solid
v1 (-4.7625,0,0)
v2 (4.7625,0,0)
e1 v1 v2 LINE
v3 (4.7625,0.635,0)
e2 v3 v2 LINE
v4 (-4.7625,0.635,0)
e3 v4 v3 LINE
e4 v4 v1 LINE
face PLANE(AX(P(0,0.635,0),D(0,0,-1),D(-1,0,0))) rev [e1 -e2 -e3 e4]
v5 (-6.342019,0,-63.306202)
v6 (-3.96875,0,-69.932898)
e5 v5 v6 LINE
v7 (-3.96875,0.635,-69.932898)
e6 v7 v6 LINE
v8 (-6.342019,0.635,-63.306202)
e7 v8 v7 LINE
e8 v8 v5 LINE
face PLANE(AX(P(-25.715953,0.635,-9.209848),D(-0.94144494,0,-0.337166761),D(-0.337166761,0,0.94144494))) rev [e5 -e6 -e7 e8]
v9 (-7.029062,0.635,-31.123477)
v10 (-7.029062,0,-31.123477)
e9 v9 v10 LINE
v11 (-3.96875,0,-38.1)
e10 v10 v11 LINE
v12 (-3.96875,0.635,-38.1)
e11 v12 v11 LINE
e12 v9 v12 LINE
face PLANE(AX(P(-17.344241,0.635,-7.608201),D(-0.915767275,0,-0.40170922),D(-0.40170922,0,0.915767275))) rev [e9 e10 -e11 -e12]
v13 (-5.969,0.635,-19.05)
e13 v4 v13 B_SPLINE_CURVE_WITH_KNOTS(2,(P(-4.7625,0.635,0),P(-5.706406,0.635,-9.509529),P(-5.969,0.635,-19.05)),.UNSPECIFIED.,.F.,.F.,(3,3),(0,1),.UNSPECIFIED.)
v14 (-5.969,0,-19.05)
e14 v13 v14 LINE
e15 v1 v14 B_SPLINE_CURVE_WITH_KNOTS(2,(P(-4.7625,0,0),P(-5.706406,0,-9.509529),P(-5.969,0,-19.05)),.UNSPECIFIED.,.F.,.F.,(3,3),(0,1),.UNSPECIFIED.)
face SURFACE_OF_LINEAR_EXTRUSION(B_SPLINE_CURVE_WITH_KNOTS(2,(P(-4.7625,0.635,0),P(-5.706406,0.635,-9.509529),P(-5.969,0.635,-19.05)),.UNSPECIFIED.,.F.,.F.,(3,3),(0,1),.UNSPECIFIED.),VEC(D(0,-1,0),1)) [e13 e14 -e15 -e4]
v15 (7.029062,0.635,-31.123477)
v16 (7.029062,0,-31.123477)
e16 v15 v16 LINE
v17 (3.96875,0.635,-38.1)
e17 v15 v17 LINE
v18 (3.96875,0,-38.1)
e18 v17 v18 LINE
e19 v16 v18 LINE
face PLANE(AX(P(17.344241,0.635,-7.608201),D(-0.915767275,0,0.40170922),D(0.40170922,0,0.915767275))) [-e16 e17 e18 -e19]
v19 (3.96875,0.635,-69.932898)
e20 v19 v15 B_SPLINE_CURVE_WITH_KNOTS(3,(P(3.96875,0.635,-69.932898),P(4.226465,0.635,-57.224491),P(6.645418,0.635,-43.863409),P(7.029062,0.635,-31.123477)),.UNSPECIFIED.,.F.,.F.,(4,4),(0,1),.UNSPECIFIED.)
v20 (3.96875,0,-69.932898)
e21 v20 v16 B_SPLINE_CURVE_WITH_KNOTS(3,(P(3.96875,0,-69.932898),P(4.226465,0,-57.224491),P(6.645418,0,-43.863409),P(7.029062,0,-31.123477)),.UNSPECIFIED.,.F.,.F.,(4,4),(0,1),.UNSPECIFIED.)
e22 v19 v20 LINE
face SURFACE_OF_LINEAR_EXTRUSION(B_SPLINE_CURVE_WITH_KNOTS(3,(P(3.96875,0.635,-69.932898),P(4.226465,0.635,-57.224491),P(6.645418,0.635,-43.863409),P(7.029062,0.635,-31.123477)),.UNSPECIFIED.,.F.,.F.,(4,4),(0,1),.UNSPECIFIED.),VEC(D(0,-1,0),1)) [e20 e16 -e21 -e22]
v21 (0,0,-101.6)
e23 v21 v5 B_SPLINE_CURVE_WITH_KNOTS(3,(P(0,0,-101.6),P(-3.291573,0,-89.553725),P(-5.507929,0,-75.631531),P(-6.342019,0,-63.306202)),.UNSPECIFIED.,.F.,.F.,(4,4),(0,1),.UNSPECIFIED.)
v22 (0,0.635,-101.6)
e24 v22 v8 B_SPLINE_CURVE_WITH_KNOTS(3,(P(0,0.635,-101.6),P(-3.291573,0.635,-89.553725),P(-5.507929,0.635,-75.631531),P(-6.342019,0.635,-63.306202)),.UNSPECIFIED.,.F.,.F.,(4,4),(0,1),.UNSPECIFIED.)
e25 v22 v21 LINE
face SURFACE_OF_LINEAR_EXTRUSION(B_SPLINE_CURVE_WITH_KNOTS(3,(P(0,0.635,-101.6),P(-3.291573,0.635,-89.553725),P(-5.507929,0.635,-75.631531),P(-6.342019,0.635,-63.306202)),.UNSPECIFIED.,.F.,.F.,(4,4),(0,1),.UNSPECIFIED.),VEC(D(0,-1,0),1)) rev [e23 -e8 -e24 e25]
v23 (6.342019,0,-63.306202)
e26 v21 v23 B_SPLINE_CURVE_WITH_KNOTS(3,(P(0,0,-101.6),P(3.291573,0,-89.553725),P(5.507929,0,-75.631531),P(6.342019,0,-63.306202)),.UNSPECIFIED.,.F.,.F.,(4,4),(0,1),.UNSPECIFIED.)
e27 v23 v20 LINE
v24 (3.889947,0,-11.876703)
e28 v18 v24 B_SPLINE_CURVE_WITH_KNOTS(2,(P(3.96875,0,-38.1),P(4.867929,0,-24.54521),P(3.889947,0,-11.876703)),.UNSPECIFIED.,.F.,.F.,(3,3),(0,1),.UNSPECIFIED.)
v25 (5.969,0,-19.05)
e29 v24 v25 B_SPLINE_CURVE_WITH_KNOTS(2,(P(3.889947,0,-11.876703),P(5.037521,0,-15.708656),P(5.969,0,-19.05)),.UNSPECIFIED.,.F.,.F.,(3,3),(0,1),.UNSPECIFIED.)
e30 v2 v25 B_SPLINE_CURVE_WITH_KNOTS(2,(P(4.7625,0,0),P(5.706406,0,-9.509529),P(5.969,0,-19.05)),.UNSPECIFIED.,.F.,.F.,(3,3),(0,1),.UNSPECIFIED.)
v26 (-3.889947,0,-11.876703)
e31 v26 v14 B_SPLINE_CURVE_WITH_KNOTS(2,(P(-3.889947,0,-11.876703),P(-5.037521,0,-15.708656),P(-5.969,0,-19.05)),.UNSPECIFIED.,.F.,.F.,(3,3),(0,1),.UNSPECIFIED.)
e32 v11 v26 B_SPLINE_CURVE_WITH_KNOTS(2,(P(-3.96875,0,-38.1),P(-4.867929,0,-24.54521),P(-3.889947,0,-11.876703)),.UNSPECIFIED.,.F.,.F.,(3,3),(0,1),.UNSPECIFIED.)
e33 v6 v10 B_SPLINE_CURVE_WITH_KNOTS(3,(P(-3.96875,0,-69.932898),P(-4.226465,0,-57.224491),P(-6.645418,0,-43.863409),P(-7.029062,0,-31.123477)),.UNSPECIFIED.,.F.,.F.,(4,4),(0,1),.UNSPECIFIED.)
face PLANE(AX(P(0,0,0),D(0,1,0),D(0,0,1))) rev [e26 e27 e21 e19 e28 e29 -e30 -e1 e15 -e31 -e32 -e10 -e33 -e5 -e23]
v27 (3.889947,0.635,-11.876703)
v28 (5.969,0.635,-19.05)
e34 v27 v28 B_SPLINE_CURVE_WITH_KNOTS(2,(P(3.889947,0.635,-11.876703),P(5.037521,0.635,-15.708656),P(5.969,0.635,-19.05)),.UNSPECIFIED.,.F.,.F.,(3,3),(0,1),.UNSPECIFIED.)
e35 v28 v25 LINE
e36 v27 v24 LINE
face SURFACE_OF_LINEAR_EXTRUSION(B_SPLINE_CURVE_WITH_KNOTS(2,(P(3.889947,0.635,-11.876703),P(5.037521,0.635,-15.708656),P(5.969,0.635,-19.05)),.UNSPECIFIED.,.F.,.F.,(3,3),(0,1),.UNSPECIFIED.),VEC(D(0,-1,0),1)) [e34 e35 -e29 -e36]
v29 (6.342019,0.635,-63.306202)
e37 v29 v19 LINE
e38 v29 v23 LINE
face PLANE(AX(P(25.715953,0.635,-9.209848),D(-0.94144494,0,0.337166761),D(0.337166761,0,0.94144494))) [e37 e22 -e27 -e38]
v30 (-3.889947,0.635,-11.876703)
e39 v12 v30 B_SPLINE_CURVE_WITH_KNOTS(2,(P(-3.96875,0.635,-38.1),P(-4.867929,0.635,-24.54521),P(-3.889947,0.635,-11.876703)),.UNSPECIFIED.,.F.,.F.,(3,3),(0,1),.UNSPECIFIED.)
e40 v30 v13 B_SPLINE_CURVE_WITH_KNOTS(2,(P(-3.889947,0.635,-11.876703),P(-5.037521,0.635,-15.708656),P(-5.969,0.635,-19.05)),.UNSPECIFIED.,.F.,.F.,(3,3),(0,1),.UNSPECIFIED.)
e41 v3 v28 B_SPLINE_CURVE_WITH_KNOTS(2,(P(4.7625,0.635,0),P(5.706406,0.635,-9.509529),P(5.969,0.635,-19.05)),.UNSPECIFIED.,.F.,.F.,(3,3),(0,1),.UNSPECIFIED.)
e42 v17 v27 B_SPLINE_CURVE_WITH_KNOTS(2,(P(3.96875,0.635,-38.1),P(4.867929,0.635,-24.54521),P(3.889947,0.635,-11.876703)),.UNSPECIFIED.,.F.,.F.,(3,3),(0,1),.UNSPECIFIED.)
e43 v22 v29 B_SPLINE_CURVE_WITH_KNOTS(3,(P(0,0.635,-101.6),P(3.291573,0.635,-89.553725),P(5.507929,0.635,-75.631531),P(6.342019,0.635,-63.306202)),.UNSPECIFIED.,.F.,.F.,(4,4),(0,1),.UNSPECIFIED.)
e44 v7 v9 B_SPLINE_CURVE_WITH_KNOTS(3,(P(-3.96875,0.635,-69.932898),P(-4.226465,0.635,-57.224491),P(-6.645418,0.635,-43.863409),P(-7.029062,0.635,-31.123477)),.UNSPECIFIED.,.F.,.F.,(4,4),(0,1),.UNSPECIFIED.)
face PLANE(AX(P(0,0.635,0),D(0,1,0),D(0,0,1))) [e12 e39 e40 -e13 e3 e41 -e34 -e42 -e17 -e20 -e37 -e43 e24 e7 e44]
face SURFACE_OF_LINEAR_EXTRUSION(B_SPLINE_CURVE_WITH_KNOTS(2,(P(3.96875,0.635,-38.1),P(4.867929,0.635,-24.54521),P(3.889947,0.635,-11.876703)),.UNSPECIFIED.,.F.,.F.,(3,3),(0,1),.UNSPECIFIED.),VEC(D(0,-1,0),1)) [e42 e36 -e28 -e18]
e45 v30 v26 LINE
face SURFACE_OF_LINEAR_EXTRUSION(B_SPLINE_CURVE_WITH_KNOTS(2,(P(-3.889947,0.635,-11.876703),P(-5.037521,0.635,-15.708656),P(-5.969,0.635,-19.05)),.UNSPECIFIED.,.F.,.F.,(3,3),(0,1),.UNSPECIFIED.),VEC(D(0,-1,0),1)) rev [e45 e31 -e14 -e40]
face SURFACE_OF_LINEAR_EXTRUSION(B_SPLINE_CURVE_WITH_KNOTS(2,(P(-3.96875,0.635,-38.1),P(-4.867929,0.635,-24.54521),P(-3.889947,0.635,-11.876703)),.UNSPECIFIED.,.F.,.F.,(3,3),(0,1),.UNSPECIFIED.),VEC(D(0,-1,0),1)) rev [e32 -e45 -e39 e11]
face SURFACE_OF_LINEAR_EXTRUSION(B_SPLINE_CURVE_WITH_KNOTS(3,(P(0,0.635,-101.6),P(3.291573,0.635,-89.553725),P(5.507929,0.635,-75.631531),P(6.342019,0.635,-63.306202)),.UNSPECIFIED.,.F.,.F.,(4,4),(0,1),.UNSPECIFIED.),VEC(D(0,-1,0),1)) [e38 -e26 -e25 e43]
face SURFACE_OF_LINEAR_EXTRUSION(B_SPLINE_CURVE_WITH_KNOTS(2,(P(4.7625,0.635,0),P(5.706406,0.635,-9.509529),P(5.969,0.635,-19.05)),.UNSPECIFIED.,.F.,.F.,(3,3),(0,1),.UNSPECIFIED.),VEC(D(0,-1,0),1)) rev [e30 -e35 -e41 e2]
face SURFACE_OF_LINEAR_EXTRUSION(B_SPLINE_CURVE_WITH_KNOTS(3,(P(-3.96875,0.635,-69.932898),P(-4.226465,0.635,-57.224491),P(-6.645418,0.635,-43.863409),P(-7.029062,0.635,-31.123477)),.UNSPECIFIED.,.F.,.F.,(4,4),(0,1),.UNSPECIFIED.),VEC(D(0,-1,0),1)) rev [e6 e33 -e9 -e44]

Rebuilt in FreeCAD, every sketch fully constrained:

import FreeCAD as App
import Part
import Sketcher

doc = App.newDocument("Part")
params = doc.addObject("Spreadsheet::Sheet", "Params")
for row, (alias, value) in enumerate([
    ("pad1_length", "0.025 in"),
], start=1):
    params.set(f"A{row}", alias)
    params.set(f"B{row}", "=" + value)
    params.setAlias(f"B{row}", alias)

body = doc.addObject("PartDesign::Body", "Body")

sketch1 = body.newObject("Sketcher::SketchObject", "Sketch")
sketch1.AttachmentSupport = (doc.getObject("XZ_Plane"), [""])
sketch1.MapMode = "FlatFace"
sketch1.addGeometry([
    Part.LineSegment(App.Vector(-4.7625, 0, 0), App.Vector(4.7625, 0, 0)),
    Part.BSplineCurve([App.Vector(4.7625, 0, 0), App.Vector(5.706406, -9.509529, 0), App.Vector(5.969, -19.05, 0)], [3, 3], [0, 1], False, 2, [1, 1, 1], False),
    Part.BSplineCurve([App.Vector(3.889947, -11.876703, 0), App.Vector(5.037521, -15.708656, 0), App.Vector(5.969, -19.05, 0)], [3, 3], [0, 1], False, 2, [1, 1, 1], False),
    Part.BSplineCurve([App.Vector(3.96875, -38.1, 0), App.Vector(4.867929, -24.54521, 0), App.Vector(3.889947, -11.876703, 0)], [3, 3], [0, 1], False, 2, [1, 1, 1], False),
    Part.LineSegment(App.Vector(3.96875, -38.1, 0), App.Vector(7.029062, -31.123477, 0)),
    Part.BSplineCurve([App.Vector(3.96875, -69.932898, 0), App.Vector(4.226465, -57.224491, 0), App.Vector(6.645418, -43.863409, 0), App.Vector(7.029062, -31.123477, 0)], [4, 4], [0, 1], False, 3, [1, 1, 1, 1], False),
    Part.LineSegment(App.Vector(3.96875, -69.932898, 0), App.Vector(6.342019, -63.306202, 0)),
    Part.BSplineCurve([App.Vector(0, -101.6, 0), App.Vector(3.291573, -89.553725, 0), App.Vector(5.507929, -75.631531, 0), App.Vector(6.342019, -63.306202, 0)], [4, 4], [0, 1], False, 3, [1, 1, 1, 1], False),
    Part.BSplineCurve([App.Vector(0, -101.6, 0), App.Vector(-3.291573, -89.553725, 0), App.Vector(-5.507929, -75.631531, 0), App.Vector(-6.342019, -63.306202, 0)], [4, 4], [0, 1], False, 3, [1, 1, 1, 1], False),
    Part.LineSegment(App.Vector(-6.342019, -63.306202, 0), App.Vector(-3.96875, -69.932898, 0)),
    Part.BSplineCurve([App.Vector(-3.96875, -69.932898, 0), App.Vector(-4.226465, -57.224491, 0), App.Vector(-6.645418, -43.863409, 0), App.Vector(-7.029062, -31.123477, 0)], [4, 4], [0, 1], False, 3, [1, 1, 1, 1], False),
    Part.LineSegment(App.Vector(-7.029062, -31.123477, 0), App.Vector(-3.96875, -38.1, 0)),
    Part.BSplineCurve([App.Vector(-3.96875, -38.1, 0), App.Vector(-4.867929, -24.54521, 0), App.Vector(-3.889947, -11.876703, 0)], [3, 3], [0, 1], False, 2, [1, 1, 1], False),
    Part.BSplineCurve([App.Vector(-3.889947, -11.876703, 0), App.Vector(-5.037521, -15.708656, 0), App.Vector(-5.969, -19.05, 0)], [3, 3], [0, 1], False, 2, [1, 1, 1], False),
    Part.BSplineCurve([App.Vector(-4.7625, 0, 0), App.Vector(-5.706406, -9.509529, 0), App.Vector(-5.969, -19.05, 0)], [3, 3], [0, 1], False, 2, [1, 1, 1], False),
], False)
sketch1.addConstraint([
    Sketcher.Constraint("Block", 1),
    Sketcher.Constraint("Block", 2),
    Sketcher.Constraint("Block", 3),
    Sketcher.Constraint("Block", 5),
    Sketcher.Constraint("Block", 7),
    Sketcher.Constraint("Block", 8),
    Sketcher.Constraint("Block", 10),
    Sketcher.Constraint("Block", 12),
    Sketcher.Constraint("Block", 13),
    Sketcher.Constraint("Block", 14),
    Sketcher.Constraint("Coincident", 0, 2, 1, 1),
    Sketcher.Constraint("Coincident", 3, 1, 4, 1),
    Sketcher.Constraint("Coincident", 4, 2, 5, 2),
    Sketcher.Constraint("Coincident", 5, 1, 6, 1),
    Sketcher.Constraint("Coincident", 6, 2, 7, 2),
    Sketcher.Constraint("Coincident", 8, 2, 9, 1),
    Sketcher.Constraint("Coincident", 9, 2, 10, 1),
    Sketcher.Constraint("Coincident", 10, 2, 11, 1),
    Sketcher.Constraint("Coincident", 11, 2, 12, 1),
    Sketcher.Constraint("Coincident", 14, 1, 0, 1),
])
pad1 = body.newObject("PartDesign::Pad", "Pad")
pad1.Profile = sketch1
pad1.setExpression("Length", "Params.pad1_length")
pad1.Reversed = True

doc.recompute()
